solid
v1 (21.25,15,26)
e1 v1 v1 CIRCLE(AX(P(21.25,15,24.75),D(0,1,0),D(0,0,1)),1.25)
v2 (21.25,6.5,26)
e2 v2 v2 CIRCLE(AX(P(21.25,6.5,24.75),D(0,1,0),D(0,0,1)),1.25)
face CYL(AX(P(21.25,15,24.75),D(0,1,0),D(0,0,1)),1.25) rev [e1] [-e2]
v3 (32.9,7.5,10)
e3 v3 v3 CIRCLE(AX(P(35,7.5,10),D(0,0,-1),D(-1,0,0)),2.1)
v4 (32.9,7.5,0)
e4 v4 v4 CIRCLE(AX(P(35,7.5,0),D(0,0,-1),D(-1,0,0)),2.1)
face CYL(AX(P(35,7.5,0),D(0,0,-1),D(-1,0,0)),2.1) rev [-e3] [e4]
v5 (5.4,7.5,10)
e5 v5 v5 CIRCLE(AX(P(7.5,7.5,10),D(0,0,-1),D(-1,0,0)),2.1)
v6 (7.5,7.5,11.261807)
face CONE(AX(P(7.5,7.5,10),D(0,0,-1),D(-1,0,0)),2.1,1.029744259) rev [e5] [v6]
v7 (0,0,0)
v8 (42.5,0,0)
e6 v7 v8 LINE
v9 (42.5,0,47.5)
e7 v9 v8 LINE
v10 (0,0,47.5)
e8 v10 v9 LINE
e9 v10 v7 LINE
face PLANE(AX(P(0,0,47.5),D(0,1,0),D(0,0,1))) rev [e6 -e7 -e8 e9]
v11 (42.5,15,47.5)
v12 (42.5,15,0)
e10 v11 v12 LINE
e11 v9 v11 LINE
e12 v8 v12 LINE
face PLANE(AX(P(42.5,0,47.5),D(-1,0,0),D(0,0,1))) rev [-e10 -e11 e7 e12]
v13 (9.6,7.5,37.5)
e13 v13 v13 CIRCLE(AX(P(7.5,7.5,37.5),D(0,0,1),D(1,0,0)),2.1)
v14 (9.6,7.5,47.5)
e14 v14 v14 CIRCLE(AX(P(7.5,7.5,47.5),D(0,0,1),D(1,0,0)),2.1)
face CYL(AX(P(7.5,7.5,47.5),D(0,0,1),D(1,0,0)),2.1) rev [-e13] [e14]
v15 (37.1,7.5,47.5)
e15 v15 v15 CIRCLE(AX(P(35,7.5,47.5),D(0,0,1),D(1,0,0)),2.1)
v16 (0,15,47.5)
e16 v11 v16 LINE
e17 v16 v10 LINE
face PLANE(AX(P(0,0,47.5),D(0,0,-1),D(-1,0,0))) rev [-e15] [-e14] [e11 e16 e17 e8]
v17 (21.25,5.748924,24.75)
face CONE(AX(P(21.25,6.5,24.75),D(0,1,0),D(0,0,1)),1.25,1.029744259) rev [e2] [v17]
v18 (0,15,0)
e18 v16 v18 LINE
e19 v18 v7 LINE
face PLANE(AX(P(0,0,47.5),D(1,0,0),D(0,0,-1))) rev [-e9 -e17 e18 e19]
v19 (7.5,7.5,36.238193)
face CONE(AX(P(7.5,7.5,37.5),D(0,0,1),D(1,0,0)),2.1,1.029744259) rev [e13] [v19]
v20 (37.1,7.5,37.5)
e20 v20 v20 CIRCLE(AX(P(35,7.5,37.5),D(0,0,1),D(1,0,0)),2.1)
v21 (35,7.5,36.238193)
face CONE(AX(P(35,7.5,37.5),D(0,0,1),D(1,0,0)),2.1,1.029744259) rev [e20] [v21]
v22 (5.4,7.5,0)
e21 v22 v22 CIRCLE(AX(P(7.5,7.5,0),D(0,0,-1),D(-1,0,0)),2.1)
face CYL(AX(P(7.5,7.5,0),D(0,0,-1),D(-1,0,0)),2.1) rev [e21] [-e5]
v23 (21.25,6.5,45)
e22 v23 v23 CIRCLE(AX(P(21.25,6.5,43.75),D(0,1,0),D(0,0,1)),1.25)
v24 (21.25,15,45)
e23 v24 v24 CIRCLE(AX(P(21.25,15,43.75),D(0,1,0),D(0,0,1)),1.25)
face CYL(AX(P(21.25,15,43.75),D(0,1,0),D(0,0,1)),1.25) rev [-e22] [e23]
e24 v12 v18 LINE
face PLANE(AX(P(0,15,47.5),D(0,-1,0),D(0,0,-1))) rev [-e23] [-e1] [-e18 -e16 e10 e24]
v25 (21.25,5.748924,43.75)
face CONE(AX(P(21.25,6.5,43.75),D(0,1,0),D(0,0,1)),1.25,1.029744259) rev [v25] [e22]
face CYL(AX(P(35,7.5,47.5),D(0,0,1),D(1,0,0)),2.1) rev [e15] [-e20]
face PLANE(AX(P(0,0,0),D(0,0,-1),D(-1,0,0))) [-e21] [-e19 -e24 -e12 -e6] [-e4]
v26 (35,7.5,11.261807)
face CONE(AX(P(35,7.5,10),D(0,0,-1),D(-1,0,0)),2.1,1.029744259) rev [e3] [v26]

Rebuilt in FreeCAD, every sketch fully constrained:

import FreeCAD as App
import Part
import Sketcher

V = App.Vector
Q = App.Units.Quantity

doc = App.newDocument("Part")
body = doc.addObject("PartDesign::Body", "Body")

# Sketch on XY plane
sketch1 = body.newObject("Sketcher::SketchObject", "Sketch")
sketch1.AttachmentSupport = (doc.getObject("XY_Plane"), [""])
sketch1.MapMode = "FlatFace"
sketch1.addGeometry([
    Part.LineSegment(V(0, 15, 0), V(0, 0, 0)),
    Part.LineSegment(V(0, 0, 0), V(42.5, 0, 0)),
    Part.LineSegment(V(42.5, 0, 0), V(42.5, 15, 0)),
    Part.LineSegment(V(42.5, 15, 0), V(0, 15, 0)),
], False)
sketch1.addConstraint([
    Sketcher.Constraint("Coincident", 0, 2, 1, 1),
    Sketcher.Constraint("Coincident", 1, 2, 2, 1),
    Sketcher.Constraint("Coincident", 2, 2, 3, 1),
    Sketcher.Constraint("Coincident", 3, 2, 0, 1),
    Sketcher.Constraint("Vertical", 0),
    Sketcher.Constraint("Horizontal", 1),
    Sketcher.Constraint("Vertical", 2),
    Sketcher.Constraint("Horizontal", 3),
    Sketcher.Constraint("Coincident", 0, 2, -1, 1),
    Sketcher.Constraint("DistanceY", 0, 2, 0, 1, Q("15 mm")),
    Sketcher.Constraint("DistanceX", 1, 1, 1, 2, Q("42.5 mm")),
])
pad1 = body.newObject("PartDesign::Pad", "Pad")
pad1.Profile = sketch1
pad1.Length = 47.5

# Sketch on XY plane
sketch2 = body.newObject("Sketcher::SketchObject", "Sketch001")
sketch2.AttachmentSupport = (doc.getObject("XY_Plane"), [""])
sketch2.MapMode = "FlatFace"
sketch2.addGeometry([
    Part.Circle(V(7.5, 7.5, 0), V(0, 0, 1), 2.1),
    Part.Circle(V(35, 7.5, 0), V(0, 0, 1), 2.1),
], False)
sketch2.addConstraint([
    Sketcher.Constraint("Equal", 0, 1),
    Sketcher.Constraint("Horizontal", 0, 3, 1, 3),
    Sketcher.Constraint("Diameter", 0, Q("4.2 mm")),
    Sketcher.Constraint("DistanceX", -1, 1, 1, 3, Q("35 mm")),
    Sketcher.Constraint("DistanceX", -1, 1, 0, 3, Q("7.5 mm")),
    Sketcher.Constraint("DistanceY", -1, 1, 0, 3, Q("7.5 mm")),
])
doc.recompute()
hole = body.newObject("PartDesign::Hole", "Hole")
hole.Profile = sketch2
hole.ThreadType = "None"
hole.Diameter = 4.2
hole.DepthType = "Dimension"
hole.Depth = 10
hole.DrillPoint = "Angled"
hole.DrillPointAngle = 118
hole.Reversed = True

# Sketch on XY plane
sketch3 = body.newObject("Sketcher::SketchObject", "Sketch002")
sketch3.AttachmentSupport = (doc.getObject("XY_Plane"), [""])
sketch3.MapMode = "FlatFace"
sketch3.AttachmentOffset = App.Placement(V(0, 0, 47.5), App.Rotation())
sketch3.addGeometry([
    Part.Circle(V(7.5, 7.5, 0), V(0, 0, 1), 2.1),
    Part.Circle(V(35, 7.5, 0), V(0, 0, 1), 2.1),
], False)
sketch3.addConstraint([
    Sketcher.Constraint("Equal", 0, 1),
    Sketcher.Constraint("Horizontal", 0, 3, 1, 3),
    Sketcher.Constraint("Diameter", 0, Q("4.2 mm")),
    Sketcher.Constraint("DistanceX", -1, 1, 1, 3, Q("35 mm")),
    Sketcher.Constraint("DistanceX", -1, 1, 0, 3, Q("7.5 mm")),
    Sketcher.Constraint("DistanceY", -1, 1, 0, 3, Q("7.5 mm")),
])
doc.recompute()
hole2 = body.newObject("PartDesign::Hole", "Hole001")
hole2.Profile = sketch3
hole2.ThreadType = "None"
hole2.Diameter = 4.2
hole2.DepthType = "Dimension"
hole2.Depth = 10
hole2.DrillPoint = "Angled"
hole2.DrillPointAngle = 118

# Sketch on XZ plane
sketch4 = body.newObject("Sketcher::SketchObject", "Sketch003")
sketch4.AttachmentSupport = (doc.getObject("XZ_Plane"), [""])
sketch4.MapMode = "FlatFace"
sketch4.AttachmentOffset = App.Placement(V(0, 0, -15), App.Rotation())
sketch4.addGeometry([
    Part.Circle(V(21.25, 43.75, 0), V(0, 0, 1), 1.25),
    Part.Circle(V(21.25, 24.75, 0), V(0, 0, 1), 1.25),
], False)
sketch4.addConstraint([
    Sketcher.Constraint("Equal", 0, 1),
    Sketcher.Constraint("Vertical", 0, 3, 1, 3),
    Sketcher.Constraint("Diameter", 0, Q("2.5 mm")),
    Sketcher.Constraint("DistanceY", 1, 3, 0, 3, Q("19 mm")),
    Sketcher.Constraint("DistanceX", -1, 1, 0, 3, Q("21.25 mm")),
    Sketcher.Constraint("DistanceY", -1, 1, 0, 3, Q("43.75 mm")),
])
doc.recompute()
hole3 = body.newObject("PartDesign::Hole", "Hole002")
hole3.Profile = sketch4
hole3.ThreadType = "None"
hole3.Diameter = 2.5
hole3.DepthType = "Dimension"
hole3.Depth = 8.5
hole3.DrillPoint = "Angled"
hole3.DrillPointAngle = 118
hole3.Reversed = True

doc.recompute()
